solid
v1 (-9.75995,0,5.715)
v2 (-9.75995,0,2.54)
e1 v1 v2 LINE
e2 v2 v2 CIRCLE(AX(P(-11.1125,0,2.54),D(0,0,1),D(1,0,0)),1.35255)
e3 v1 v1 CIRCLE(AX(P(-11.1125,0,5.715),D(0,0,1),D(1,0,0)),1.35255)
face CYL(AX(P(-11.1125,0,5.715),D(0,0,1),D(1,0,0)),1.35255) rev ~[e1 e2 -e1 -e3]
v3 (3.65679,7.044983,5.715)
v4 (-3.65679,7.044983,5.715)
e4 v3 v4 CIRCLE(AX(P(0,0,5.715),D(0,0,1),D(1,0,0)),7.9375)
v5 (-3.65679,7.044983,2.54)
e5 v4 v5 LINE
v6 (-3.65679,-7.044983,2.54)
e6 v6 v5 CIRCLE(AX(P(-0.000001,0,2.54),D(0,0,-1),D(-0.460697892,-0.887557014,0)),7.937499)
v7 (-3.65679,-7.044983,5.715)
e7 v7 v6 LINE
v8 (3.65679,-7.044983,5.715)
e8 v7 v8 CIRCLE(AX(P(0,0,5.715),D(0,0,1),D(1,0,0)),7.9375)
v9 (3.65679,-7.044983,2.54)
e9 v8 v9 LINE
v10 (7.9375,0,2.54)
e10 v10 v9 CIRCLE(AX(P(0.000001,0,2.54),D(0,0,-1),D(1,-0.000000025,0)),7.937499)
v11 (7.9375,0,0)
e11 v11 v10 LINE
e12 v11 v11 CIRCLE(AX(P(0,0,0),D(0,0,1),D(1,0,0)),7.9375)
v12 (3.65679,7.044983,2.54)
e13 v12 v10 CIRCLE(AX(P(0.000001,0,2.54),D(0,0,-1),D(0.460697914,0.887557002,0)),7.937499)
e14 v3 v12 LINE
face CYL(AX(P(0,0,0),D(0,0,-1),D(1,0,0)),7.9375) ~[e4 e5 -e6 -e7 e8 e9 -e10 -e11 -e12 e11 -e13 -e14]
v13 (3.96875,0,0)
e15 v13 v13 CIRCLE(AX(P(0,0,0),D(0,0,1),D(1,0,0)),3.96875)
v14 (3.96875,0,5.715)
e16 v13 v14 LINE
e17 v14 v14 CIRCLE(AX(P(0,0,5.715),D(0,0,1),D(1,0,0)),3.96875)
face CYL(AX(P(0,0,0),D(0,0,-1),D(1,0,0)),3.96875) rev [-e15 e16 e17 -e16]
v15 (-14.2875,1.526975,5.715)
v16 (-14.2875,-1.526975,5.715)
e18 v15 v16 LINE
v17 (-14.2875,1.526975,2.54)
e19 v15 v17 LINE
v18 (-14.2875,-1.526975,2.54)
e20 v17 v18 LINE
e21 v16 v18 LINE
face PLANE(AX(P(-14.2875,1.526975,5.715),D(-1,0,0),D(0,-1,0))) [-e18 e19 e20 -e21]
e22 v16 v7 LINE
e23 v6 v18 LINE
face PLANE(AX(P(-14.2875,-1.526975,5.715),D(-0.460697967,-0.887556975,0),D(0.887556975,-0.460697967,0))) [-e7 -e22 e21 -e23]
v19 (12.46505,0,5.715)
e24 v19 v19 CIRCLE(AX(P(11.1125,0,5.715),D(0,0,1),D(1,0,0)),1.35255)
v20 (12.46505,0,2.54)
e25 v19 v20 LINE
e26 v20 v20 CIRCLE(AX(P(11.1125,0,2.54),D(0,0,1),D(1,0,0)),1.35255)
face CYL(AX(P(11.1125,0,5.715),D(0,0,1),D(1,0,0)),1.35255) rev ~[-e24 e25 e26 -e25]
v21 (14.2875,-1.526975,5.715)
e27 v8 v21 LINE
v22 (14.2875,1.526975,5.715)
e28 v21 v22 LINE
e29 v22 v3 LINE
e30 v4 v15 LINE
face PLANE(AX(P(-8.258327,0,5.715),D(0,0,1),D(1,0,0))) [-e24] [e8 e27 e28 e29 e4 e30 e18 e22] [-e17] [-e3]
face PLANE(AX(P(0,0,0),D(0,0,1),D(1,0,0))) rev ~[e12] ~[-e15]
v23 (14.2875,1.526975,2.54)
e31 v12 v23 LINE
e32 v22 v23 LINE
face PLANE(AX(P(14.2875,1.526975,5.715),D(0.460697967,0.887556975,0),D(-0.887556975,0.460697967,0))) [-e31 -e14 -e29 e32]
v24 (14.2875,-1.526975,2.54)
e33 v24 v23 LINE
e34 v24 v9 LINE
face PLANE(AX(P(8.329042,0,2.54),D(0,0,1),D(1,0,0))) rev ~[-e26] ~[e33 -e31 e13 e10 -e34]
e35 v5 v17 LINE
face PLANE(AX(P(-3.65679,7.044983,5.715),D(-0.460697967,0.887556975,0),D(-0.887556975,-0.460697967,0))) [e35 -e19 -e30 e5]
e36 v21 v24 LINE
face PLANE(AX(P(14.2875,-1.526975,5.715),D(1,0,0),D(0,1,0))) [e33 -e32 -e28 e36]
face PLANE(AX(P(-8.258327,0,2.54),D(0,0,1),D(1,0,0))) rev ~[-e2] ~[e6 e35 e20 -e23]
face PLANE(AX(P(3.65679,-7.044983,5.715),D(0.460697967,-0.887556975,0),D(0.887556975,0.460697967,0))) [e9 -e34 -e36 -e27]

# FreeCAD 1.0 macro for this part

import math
import FreeCAD as App
import Part
import Sketcher

V = App.Vector
Q = App.Units.Quantity

doc = App.newDocument("Part")
params = doc.addObject("Spreadsheet::Sheet", "Params")
for row, (alias, value) in enumerate([
    ("sketch1_diameter", "0.625 in"),
    ("sketch1_diameter2", "0.3125 in"),
    ("pad1_length", "0.225 in"),
    ("sketch2_radius", "0.3125 in"),
    ("pad2_length", "0.125 in"),
], start=1):
    params.set(f"A{row}", alias)
    params.set(f"B{row}", "=" + value)
    params.setAlias(f"B{row}", alias)

body = doc.addObject("PartDesign::Body", "Body")

# Sketch on XY plane
sketch1 = body.newObject("Sketcher::SketchObject", "Sketch")
sketch1.AttachmentSupport = (doc.getObject("XY_Plane"), [""])
sketch1.MapMode = "FlatFace"
sketch1.addGeometry(Part.Circle(V(0, 0, 0), V(0, 0, 1), 7.9), False)
sketch1.addGeometry(Part.Circle(V(0, 0, 0), V(0, 0, 1), 4), False)
sketch1.addConstraint(Sketcher.Constraint("Coincident", 0, 3, -1, 1))
sketch1.addConstraint(Sketcher.Constraint("Coincident", 1, 3, -1, 1))
sketch1.addConstraint(Sketcher.Constraint("Diameter", 0, Q("0.625 in")))
sketch1.addConstraint(Sketcher.Constraint("Diameter", 1, Q("0.3125 in")))
sketch1.setExpression("Constraints[2]", "Params.sketch1_diameter")
sketch1.setExpression("Constraints[3]", "Params.sketch1_diameter2")
pad1 = body.newObject("PartDesign::Pad", "Pad")
pad1.Profile = sketch1
pad1.setExpression("Length", "Params.pad1_length")

# Sketch on XY plane
sketch2 = body.newObject("Sketcher::SketchObject", "Sketch001")
sketch2.AttachmentSupport = (doc.getObject("XY_Plane"), [""])
sketch2.MapMode = "FlatFace"
sketch2.AttachmentOffset = App.Placement(V(0, 0, 0.225 * 25.4), App.Rotation())
sketch2.addGeometry(Part.LineSegment(V(-3.7, 7, 0), V(-14.3, 1.5, 0)), False)
sketch2.addGeometry(Part.LineSegment(V(-14.3, 1.5, 0), V(-14.3, -1.5, 0)), False)
sketch2.addGeometry(Part.LineSegment(V(-14.3, -1.5, 0), V(-3.7, -7, 0)), False)
sketch2.addGeometry(Part.ArcOfCircle(Part.Circle(V(0, 0, 0), V(0, 0, 1), 7.9), math.radians(117), math.radians(243)), False)
sketch2.addGeometry(Part.Circle(V(-11.1, 0, 0), V(0, 0, 1), 1.4), False)
sketch2.addGeometry(Part.LineSegment(V(14.3, 1.5, 0), V(3.7, 7, 0)), False)
sketch2.addGeometry(Part.ArcOfCircle(Part.Circle(V(0, 0, 0), V(0, 0, 1), 7.9), math.radians(0), math.radians(63)), False)
sketch2.addGeometry(Part.ArcOfCircle(Part.Circle(V(0, 0, 0), V(0, 0, 1), 7.9), math.radians(-63), math.radians(0)), False)
sketch2.addGeometry(Part.LineSegment(V(3.7, -7, 0), V(14.3, -1.5, 0)), False)
sketch2.addGeometry(Part.LineSegment(V(14.3, -1.5, 0), V(14.3, 1.5, 0)), False)
sketch2.addGeometry(Part.Circle(V(11.1, 0, 0), V(0, 0, 1), 1.4), False)
sketch2.addConstraint(Sketcher.Constraint("Coincident", 0, 2, 1, 1))
sketch2.addConstraint(Sketcher.Constraint("Coincident", 1, 2, 2, 1))
sketch2.addConstraint(Sketcher.Constraint("Tangent", 2, 2, 3, 2))
sketch2.addConstraint(Sketcher.Constraint("Tangent", 3, 1, 0, 1))
sketch2.addConstraint(Sketcher.Constraint("Tangent", 5, 2, 6, 2))
sketch2.addConstraint(Sketcher.Constraint("Tangent", 6, 1, 7, 2))
sketch2.addConstraint(Sketcher.Constraint("Tangent", 7, 1, 8, 1))
sketch2.addConstraint(Sketcher.Constraint("Coincident", 8, 2, 9, 1))
sketch2.addConstraint(Sketcher.Constraint("Coincident", 9, 2, 5, 1))
sketch2.addConstraint(Sketcher.Constraint("Vertical", 1))
sketch2.addConstraint(Sketcher.Constraint("Vertical", 9))
sketch2.addConstraint(Sketcher.Constraint("Coincident", 3, 3, -1, 1))
sketch2.addConstraint(Sketcher.Constraint("Coincident", 6, 3, -1, 1))
sketch2.addConstraint(Sketcher.Constraint("Equal", 3, 6))
sketch2.addConstraint(Sketcher.Constraint("Equal", 6, 7))
sketch2.addConstraint(Sketcher.Constraint("Equal", 4, 10))
sketch2.addConstraint(Sketcher.Constraint("Symmetric", 4, 3, 10, 3, -1, 1))
sketch2.addConstraint(Sketcher.Constraint("Symmetric", 0, 2, 8, 2, -1, 1))
sketch2.addConstraint(Sketcher.Constraint("PointOnObject", 4, 3, -1))
sketch2.addConstraint(Sketcher.Constraint("PointOnObject", 6, 1, -1))
sketch2.addConstraint(Sketcher.Constraint("Parallel", 2, 5))
sketch2.addConstraint(Sketcher.Constraint("Horizontal", 3, 1, 5, 2))
sketch2.addConstraint(Sketcher.Constraint("Radius", 3, Q("0.3125 in")))
sketch2.addConstraint(Sketcher.Constraint("DistanceX", 0, 2, 10, 3, Q("1 in")))
sketch2.addConstraint(Sketcher.Constraint("Diameter", 4, Q("0.1065 in")))
sketch2.addConstraint(Sketcher.Constraint("DistanceX", 6, 1, 8, 2, Q("0.25 in")))
sketch2.addConstraint(Sketcher.Constraint("DistanceY", 1, 2, 1, 1, Q("3.05395 mm")))
sketch2.setExpression("Constraints[22]", "Params.sketch2_radius")
pad2 = body.newObject("PartDesign::Pad", "Pad001")
pad2.Profile = sketch2
pad2.setExpression("Length", "Params.pad2_length")
pad2.Reversed = True

doc.recompute()
